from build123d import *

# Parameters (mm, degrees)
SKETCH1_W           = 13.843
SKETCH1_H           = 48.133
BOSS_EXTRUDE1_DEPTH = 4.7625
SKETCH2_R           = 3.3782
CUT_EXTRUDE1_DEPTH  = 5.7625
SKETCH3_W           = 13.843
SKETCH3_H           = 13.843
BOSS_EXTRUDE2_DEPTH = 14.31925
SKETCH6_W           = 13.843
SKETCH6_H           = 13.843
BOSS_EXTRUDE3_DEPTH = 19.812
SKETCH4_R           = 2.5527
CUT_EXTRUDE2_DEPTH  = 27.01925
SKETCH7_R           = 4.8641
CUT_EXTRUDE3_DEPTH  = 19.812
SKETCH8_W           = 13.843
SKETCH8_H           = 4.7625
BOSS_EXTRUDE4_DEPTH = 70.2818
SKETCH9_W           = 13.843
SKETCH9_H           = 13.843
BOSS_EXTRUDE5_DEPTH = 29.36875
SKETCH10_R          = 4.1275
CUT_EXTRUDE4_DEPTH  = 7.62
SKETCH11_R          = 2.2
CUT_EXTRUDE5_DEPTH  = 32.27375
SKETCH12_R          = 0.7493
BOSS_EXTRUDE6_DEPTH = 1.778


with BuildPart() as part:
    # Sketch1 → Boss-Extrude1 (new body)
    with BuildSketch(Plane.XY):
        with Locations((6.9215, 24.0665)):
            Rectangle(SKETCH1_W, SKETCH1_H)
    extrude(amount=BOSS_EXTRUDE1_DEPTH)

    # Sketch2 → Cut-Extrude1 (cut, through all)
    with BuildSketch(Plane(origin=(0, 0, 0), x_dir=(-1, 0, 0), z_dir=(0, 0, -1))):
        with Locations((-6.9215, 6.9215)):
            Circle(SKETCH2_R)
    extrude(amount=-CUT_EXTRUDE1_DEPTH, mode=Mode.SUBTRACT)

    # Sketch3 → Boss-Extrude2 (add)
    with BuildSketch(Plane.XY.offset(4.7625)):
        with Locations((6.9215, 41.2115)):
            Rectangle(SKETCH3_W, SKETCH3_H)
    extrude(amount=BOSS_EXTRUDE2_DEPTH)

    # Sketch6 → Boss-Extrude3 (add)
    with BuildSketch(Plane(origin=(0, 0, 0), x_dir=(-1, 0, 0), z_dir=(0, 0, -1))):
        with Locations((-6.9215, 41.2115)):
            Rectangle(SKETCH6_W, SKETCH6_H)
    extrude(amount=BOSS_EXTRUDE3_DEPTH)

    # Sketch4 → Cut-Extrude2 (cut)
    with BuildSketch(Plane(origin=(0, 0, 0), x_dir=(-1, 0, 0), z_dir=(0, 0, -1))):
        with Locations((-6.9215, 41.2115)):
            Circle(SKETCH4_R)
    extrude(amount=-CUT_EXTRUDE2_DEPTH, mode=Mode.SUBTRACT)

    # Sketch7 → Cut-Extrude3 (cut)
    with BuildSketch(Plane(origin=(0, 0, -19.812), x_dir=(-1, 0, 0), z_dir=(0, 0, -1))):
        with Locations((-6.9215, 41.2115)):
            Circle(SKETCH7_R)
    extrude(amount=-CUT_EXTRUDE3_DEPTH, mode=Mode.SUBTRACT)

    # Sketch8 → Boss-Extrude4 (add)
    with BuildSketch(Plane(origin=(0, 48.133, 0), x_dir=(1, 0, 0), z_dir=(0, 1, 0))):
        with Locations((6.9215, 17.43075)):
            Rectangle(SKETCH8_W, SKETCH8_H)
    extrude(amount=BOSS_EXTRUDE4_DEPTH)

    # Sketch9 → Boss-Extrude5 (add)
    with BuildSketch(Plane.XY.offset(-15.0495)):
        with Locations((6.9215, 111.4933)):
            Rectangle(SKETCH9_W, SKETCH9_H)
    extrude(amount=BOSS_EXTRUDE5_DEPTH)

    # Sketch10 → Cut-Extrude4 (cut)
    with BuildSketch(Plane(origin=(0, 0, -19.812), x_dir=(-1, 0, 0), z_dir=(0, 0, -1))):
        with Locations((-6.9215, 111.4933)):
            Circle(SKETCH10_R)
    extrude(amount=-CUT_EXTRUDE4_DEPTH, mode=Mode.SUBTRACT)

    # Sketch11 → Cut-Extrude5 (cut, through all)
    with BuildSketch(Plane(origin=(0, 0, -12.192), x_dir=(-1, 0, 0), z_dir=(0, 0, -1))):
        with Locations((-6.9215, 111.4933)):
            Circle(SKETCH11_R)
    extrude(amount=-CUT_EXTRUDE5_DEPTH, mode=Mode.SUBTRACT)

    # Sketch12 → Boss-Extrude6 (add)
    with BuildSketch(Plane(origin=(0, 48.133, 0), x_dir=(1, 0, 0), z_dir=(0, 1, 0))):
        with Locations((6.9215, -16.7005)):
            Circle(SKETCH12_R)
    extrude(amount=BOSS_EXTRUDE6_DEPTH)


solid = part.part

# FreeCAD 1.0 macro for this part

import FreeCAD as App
import Part
import Sketcher
Q = App.Units.Quantity


def add_polygon(sketch, points):
    """Adds a closed chain of lines whose ends are joined by coincident constraints."""
    first, n = sketch.GeometryCount, len(points)
    for a, b in zip(points, points[1:] + points[:1]):
        sketch.addGeometry(Part.LineSegment(App.Vector(*a, 0), App.Vector(*b, 0)), False)
    for i in range(n):
        sketch.addConstraint(Sketcher.Constraint("Coincident", first + i, 2, first + (i + 1) % n, 1))

doc = App.newDocument("Part")
body = doc.addObject("PartDesign::Body", "Body")

# Sketch on XY plane
sketch1 = doc.addObject("Sketcher::SketchObject", "Sketch")
body.addObject(sketch1)
sketch1.AttachmentSupport = (doc.XY_Plane, [""])
sketch1.MapMode = "FlatFace"
add_polygon(sketch1, [(0, 48), (0, 0), (14, 0), (14, 48)])  # lines 0-3
sketch1.addConstraint(Sketcher.Constraint("Vertical", 0))
sketch1.addConstraint(Sketcher.Constraint("Horizontal", 1))
sketch1.addConstraint(Sketcher.Constraint("Vertical", 2))
sketch1.addConstraint(Sketcher.Constraint("Horizontal", 3))
sketch1.addConstraint(Sketcher.Constraint("Coincident", 0, 2, -1, 1))
sketch1.addConstraint(Sketcher.Constraint("DistanceX", 1, 1, 1, 2, Q("0.545 in")))
sketch1.addConstraint(Sketcher.Constraint("DistanceY", 0, 2, 0, 1, Q("1.895 in")))
pad1 = doc.addObject("PartDesign::Pad", "Pad")
body.addObject(pad1)
pad1.Profile = sketch1
pad1.Length = Q("0.1875 in")

# Sketch on XY plane
sketch2 = doc.addObject("Sketcher::SketchObject", "Sketch001")
body.addObject(sketch2)
sketch2.AttachmentSupport = (doc.XY_Plane, [""])
sketch2.MapMode = "FlatFace"
sketch2.addGeometry(Part.Circle(App.Vector(6.9, 6.9, 0), App.Vector(0, 0, 1), 3.4), False)
sketch2.addConstraint(Sketcher.Constraint("Diameter", 0, Q("0.266 in")))
sketch2.addConstraint(Sketcher.Constraint("DistanceX", -1, 1, 0, 3, Q("0.2725 in")))
sketch2.addConstraint(Sketcher.Constraint("DistanceY", -1, 1, 0, 3, Q("0.2725 in")))
pocket1 = doc.addObject("PartDesign::Pocket", "Pocket")
body.addObject(pocket1)
pocket1.Profile = sketch2
pocket1.Type = "ThroughAll"
pocket1.Reversed = True

# Sketch on XY plane
sketch3 = doc.addObject("Sketcher::SketchObject", "Sketch002")
body.addObject(sketch3)
sketch3.AttachmentSupport = (doc.XY_Plane, [""])
sketch3.MapMode = "FlatFace"
sketch3.AttachmentOffset = App.Placement(App.Vector(0, 0, 0.1875 * 25.4), App.Rotation())
add_polygon(sketch3, [(0, 48), (0, 34), (14, 34), (14, 48)])  # lines 0-3
sketch3.addConstraint(Sketcher.Constraint("Vertical", 0))
sketch3.addConstraint(Sketcher.Constraint("Horizontal", 1))
sketch3.addConstraint(Sketcher.Constraint("Vertical", 2))
sketch3.addConstraint(Sketcher.Constraint("Horizontal", 3))
sketch3.addConstraint(Sketcher.Constraint("PointOnObject", 0, 2, -2))
sketch3.addConstraint(Sketcher.Constraint("Equal", 3, 0))
sketch3.addConstraint(Sketcher.Constraint("DistanceX", 1, 1, 1, 2, Q("0.545 in")))
sketch3.addConstraint(Sketcher.Constraint("DistanceY", -1, 1, 0, 2, Q("1.35 in")))
pad2 = doc.addObject("PartDesign::Pad", "Pad001")
body.addObject(pad2)
pad2.Profile = sketch3
pad2.Length = 14.31925

# Sketch on XY plane
sketch4 = doc.addObject("Sketcher::SketchObject", "Sketch003")
body.addObject(sketch4)
sketch4.AttachmentSupport = (doc.XY_Plane, [""])
sketch4.MapMode = "FlatFace"
add_polygon(sketch4, [(14, 48), (14, 34), (0, 34), (0, 48)])  # lines 0-3
sketch4.addConstraint(Sketcher.Constraint("Vertical", 0))
sketch4.addConstraint(Sketcher.Constraint("Horizontal", 1))
sketch4.addConstraint(Sketcher.Constraint("Vertical", 2))
sketch4.addConstraint(Sketcher.Constraint("Horizontal", 3))
sketch4.addConstraint(Sketcher.Constraint("PointOnObject", 1, 2, -2))
sketch4.addConstraint(Sketcher.Constraint("Equal", 3, 0))
sketch4.addConstraint(Sketcher.Constraint("DistanceX", 1, 2, 1, 1, Q("0.545 in")))
sketch4.addConstraint(Sketcher.Constraint("DistanceY", -1, 1, 0, 2, Q("1.35 in")))
pad3 = doc.addObject("PartDesign::Pad", "Pad002")
body.addObject(pad3)
pad3.Profile = sketch4
pad3.Length = Q("0.78 in")
pad3.Reversed = True

# Sketch on XY plane
sketch5 = doc.addObject("Sketcher::SketchObject", "Sketch004")
body.addObject(sketch5)
sketch5.AttachmentSupport = (doc.XY_Plane, [""])
sketch5.MapMode = "FlatFace"
sketch5.addGeometry(Part.Circle(App.Vector(6.9, 41.2, 0), App.Vector(0, 0, 1), 2.6), False)
sketch5.addConstraint(Sketcher.Constraint("Diameter", 0, Q("0.201 in")))
sketch5.addConstraint(Sketcher.Constraint("DistanceX", -1, 1, 0, 3, Q("0.2725 in")))
sketch5.addConstraint(Sketcher.Constraint("DistanceY", -1, 1, 0, 3, Q("1.6225 in")))
pocket2 = doc.addObject("PartDesign::Pocket", "Pocket001")
body.addObject(pocket2)
pocket2.Profile = sketch5
pocket2.Length = 27.01925
pocket2.Reversed = True

# Sketch on XY plane
sketch6 = doc.addObject("Sketcher::SketchObject", "Sketch005")
body.addObject(sketch6)
sketch6.AttachmentSupport = (doc.XY_Plane, [""])
sketch6.MapMode = "FlatFace"
sketch6.AttachmentOffset = App.Placement(App.Vector(0, 0, -0.78 * 25.4), App.Rotation())
sketch6.addGeometry(Part.Circle(App.Vector(6.9, 41.2, 0), App.Vector(0, 0, 1), 4.9), False)
sketch6.addConstraint(Sketcher.Constraint("Diameter", 0, Q("0.383 in")))
sketch6.addConstraint(Sketcher.Constraint("DistanceX", -1, 1, 0, 3, Q("0.2725 in")))
sketch6.addConstraint(Sketcher.Constraint("DistanceY", -1, 1, 0, 3, Q("1.6225 in")))
pocket3 = doc.addObject("PartDesign::Pocket", "Pocket002")
body.addObject(pocket3)
pocket3.Profile = sketch6
pocket3.Length = Q("0.78 in")
pocket3.Reversed = True

# Sketch on XZ plane
sketch7 = doc.addObject("Sketcher::SketchObject", "Sketch006")
body.addObject(sketch7)
sketch7.AttachmentSupport = (doc.XZ_Plane, [""])
sketch7.MapMode = "FlatFace"
sketch7.AttachmentOffset = App.Placement(App.Vector(0, 0, -1.895 * 25.4), App.Rotation())
add_polygon(sketch7, [(0, -19.8), (0, -15), (13.8, -15), (13.8, -19.8)])  # lines 0-3
sketch7.addConstraint(Sketcher.Constraint("Vertical", 0))
sketch7.addConstraint(Sketcher.Constraint("Horizontal", 1))
sketch7.addConstraint(Sketcher.Constraint("Vertical", 2))
sketch7.addConstraint(Sketcher.Constraint("Horizontal", 3))
sketch7.addConstraint(Sketcher.Constraint("PointOnObject", 0, 2, -2))
sketch7.addConstraint(Sketcher.Constraint("DistanceX", 1, 1, 1, 2, Q("0.545 in")))
sketch7.addConstraint(Sketcher.Constraint("DistanceY", 0, 1, 0, 2, Q("0.1875 in")))
sketch7.addConstraint(Sketcher.Constraint("DistanceY", 2, 2, -1, 1, Q("0.78 in")))
pad4 = doc.addObject("PartDesign::Pad", "Pad003")
body.addObject(pad4)
pad4.Profile = sketch7
pad4.Length = Q("2.767 in")
pad4.Reversed = True

# Sketch on XY plane
sketch8 = doc.addObject("Sketcher::SketchObject", "Sketch007")
body.addObject(sketch8)
sketch8.AttachmentSupport = (doc.XY_Plane, [""])
sketch8.MapMode = "FlatFace"
sketch8.AttachmentOffset = App.Placement(App.Vector(0, 0, -0.5925 * 25.4), App.Rotation())
add_polygon(sketch8, [(0, 118), (0, 105), (14, 105), (14, 118)])  # lines 0-3
sketch8.addConstraint(Sketcher.Constraint("Vertical", 0))
sketch8.addConstraint(Sketcher.Constraint("Horizontal", 1))
sketch8.addConstraint(Sketcher.Constraint("Vertical", 2))
sketch8.addConstraint(Sketcher.Constraint("Horizontal", 3))
sketch8.addConstraint(Sketcher.Constraint("PointOnObject", 0, 2, -2))
sketch8.addConstraint(Sketcher.Constraint("Equal", 3, 0))
sketch8.addConstraint(Sketcher.Constraint("DistanceX", 1, 1, 1, 2, Q("0.545 in")))
sketch8.addConstraint(Sketcher.Constraint("DistanceY", -1, 1, 0, 2, Q("4.117 in")))
pad5 = doc.addObject("PartDesign::Pad", "Pad004")
body.addObject(pad5)
pad5.Profile = sketch8
pad5.Length = Q("1.15625 in")

# Sketch on XY plane
sketch9 = doc.addObject("Sketcher::SketchObject", "Sketch008")
body.addObject(sketch9)
sketch9.AttachmentSupport = (doc.XY_Plane, [""])
sketch9.MapMode = "FlatFace"
sketch9.AttachmentOffset = App.Placement(App.Vector(0, 0, -0.78 * 25.4), App.Rotation())
sketch9.addGeometry(Part.Circle(App.Vector(6.9, 111.5, 0), App.Vector(0, 0, 1), 4.1), False)
sketch9.addConstraint(Sketcher.Constraint("Diameter", 0, Q("0.325 in")))
sketch9.addConstraint(Sketcher.Constraint("DistanceX", -1, 1, 0, 3, Q("0.2725 in")))
sketch9.addConstraint(Sketcher.Constraint("DistanceY", -1, 1, 0, 3, Q("4.3895 in")))
pocket4 = doc.addObject("PartDesign::Pocket", "Pocket003")
body.addObject(pocket4)
pocket4.Profile = sketch9
pocket4.Length = Q("0.3 in")
pocket4.Reversed = True

# Sketch on XY plane
sketch10 = doc.addObject("Sketcher::SketchObject", "Sketch009")
body.addObject(sketch10)
sketch10.AttachmentSupport = (doc.XY_Plane, [""])
sketch10.MapMode = "FlatFace"
sketch10.AttachmentOffset = App.Placement(App.Vector(0, 0, -0.48 * 25.4), App.Rotation())
sketch10.addGeometry(Part.Circle(App.Vector(6.9, 111.5, 0), App.Vector(0, 0, 1), 2.2), False)
sketch10.addConstraint(Sketcher.Constraint("Diameter", 0, 4.4))
sketch10.addConstraint(Sketcher.Constraint("DistanceX", -1, 1, 0, 3, Q("0.2725 in")))
sketch10.addConstraint(Sketcher.Constraint("DistanceY", -1, 1, 0, 3, Q("4.3895 in")))
pocket5 = doc.addObject("PartDesign::Pocket", "Pocket004")
body.addObject(pocket5)
pocket5.Profile = sketch10
pocket5.Type = "ThroughAll"
pocket5.Reversed = True

# Sketch on XZ plane
sketch11 = doc.addObject("Sketcher::SketchObject", "Sketch010")
body.addObject(sketch11)
sketch11.AttachmentSupport = (doc.XZ_Plane, [""])
sketch11.MapMode = "FlatFace"
sketch11.AttachmentOffset = App.Placement(App.Vector(0, 0, -1.895 * 25.4), App.Rotation())
sketch11.addGeometry(Part.Circle(App.Vector(6.9, 16.7, 0), App.Vector(0, 0, 1), 0.7), False)
sketch11.addConstraint(Sketcher.Constraint("Diameter", 0, Q("0.059 in")))
sketch11.addConstraint(Sketcher.Constraint("DistanceX", -1, 1, 0, 3, Q("0.2725 in")))
sketch11.addConstraint(Sketcher.Constraint("DistanceY", -1, 1, 0, 3, Q("0.6575 in")))
pad6 = doc.addObject("PartDesign::Pad", "Pad005")
body.addObject(pad6)
pad6.Profile = sketch11
pad6.Length = Q("0.07 in")
pad6.Reversed = True

doc.recompute()
